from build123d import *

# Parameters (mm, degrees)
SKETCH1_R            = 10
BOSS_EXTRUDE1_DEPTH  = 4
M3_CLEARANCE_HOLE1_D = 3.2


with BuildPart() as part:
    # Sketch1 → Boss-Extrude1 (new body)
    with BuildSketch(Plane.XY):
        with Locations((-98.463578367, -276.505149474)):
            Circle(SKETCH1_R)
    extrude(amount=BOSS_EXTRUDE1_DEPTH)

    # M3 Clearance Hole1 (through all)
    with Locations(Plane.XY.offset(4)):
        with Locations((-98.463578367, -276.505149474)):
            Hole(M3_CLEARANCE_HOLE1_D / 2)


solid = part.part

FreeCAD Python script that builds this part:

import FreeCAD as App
import Part
import Sketcher
from FreeCAD import Vector
Q = App.Units.Quantity

doc = App.newDocument("Part")
body = doc.addObject("PartDesign::Body", "Body")

sketch1 = body.newObject("Sketcher::SketchObject", "Sketch")
sketch1.AttachmentSupport = (doc.getObject("XY_Plane"), [""])
sketch1.MapMode = "FlatFace"
sketch1.addGeometry(Part.Circle(Vector(-98.463578, -276.505149, 0), Vector(0, 0, 1), 10), False)
sketch1.addConstraint(Sketcher.Constraint("Diameter", 0, Q("20 mm")))
sketch1.addConstraint(Sketcher.Constraint("DistanceX", 0, 3, -1, 1, Q("98.463578 mm")))
sketch1.addConstraint(Sketcher.Constraint("DistanceY", 0, 3, -1, 1, Q("276.505149 mm")))
pad1 = body.newObject("PartDesign::Pad", "Pad")
pad1.Profile = sketch1
pad1.Length = 4

sketch2 = body.newObject("Sketcher::SketchObject", "Sketch001")
sketch2.AttachmentSupport = (doc.getObject("XY_Plane"), [""])
sketch2.MapMode = "FlatFace"
sketch2.AttachmentOffset = App.Placement(Vector(0, 0, 4), App.Rotation())
sketch2.addGeometry(Part.Circle(Vector(-98.463578, -276.505149, 0), Vector(0, 0, 1), 1.6), False)
sketch2.addConstraint(Sketcher.Constraint("Diameter", 0, Q("3.2 mm")))
sketch2.addConstraint(Sketcher.Constraint("DistanceX", 0, 3, -1, 1, Q("98.463578 mm")))
sketch2.addConstraint(Sketcher.Constraint("DistanceY", 0, 3, -1, 1, Q("276.505149 mm")))
doc.recompute()
hole = body.newObject("PartDesign::Hole", "Hole")
hole.Profile = sketch2
hole.ThreadType = "None"
hole.Diameter = 3.2
hole.DepthType = "ThroughAll"

doc.recompute()
